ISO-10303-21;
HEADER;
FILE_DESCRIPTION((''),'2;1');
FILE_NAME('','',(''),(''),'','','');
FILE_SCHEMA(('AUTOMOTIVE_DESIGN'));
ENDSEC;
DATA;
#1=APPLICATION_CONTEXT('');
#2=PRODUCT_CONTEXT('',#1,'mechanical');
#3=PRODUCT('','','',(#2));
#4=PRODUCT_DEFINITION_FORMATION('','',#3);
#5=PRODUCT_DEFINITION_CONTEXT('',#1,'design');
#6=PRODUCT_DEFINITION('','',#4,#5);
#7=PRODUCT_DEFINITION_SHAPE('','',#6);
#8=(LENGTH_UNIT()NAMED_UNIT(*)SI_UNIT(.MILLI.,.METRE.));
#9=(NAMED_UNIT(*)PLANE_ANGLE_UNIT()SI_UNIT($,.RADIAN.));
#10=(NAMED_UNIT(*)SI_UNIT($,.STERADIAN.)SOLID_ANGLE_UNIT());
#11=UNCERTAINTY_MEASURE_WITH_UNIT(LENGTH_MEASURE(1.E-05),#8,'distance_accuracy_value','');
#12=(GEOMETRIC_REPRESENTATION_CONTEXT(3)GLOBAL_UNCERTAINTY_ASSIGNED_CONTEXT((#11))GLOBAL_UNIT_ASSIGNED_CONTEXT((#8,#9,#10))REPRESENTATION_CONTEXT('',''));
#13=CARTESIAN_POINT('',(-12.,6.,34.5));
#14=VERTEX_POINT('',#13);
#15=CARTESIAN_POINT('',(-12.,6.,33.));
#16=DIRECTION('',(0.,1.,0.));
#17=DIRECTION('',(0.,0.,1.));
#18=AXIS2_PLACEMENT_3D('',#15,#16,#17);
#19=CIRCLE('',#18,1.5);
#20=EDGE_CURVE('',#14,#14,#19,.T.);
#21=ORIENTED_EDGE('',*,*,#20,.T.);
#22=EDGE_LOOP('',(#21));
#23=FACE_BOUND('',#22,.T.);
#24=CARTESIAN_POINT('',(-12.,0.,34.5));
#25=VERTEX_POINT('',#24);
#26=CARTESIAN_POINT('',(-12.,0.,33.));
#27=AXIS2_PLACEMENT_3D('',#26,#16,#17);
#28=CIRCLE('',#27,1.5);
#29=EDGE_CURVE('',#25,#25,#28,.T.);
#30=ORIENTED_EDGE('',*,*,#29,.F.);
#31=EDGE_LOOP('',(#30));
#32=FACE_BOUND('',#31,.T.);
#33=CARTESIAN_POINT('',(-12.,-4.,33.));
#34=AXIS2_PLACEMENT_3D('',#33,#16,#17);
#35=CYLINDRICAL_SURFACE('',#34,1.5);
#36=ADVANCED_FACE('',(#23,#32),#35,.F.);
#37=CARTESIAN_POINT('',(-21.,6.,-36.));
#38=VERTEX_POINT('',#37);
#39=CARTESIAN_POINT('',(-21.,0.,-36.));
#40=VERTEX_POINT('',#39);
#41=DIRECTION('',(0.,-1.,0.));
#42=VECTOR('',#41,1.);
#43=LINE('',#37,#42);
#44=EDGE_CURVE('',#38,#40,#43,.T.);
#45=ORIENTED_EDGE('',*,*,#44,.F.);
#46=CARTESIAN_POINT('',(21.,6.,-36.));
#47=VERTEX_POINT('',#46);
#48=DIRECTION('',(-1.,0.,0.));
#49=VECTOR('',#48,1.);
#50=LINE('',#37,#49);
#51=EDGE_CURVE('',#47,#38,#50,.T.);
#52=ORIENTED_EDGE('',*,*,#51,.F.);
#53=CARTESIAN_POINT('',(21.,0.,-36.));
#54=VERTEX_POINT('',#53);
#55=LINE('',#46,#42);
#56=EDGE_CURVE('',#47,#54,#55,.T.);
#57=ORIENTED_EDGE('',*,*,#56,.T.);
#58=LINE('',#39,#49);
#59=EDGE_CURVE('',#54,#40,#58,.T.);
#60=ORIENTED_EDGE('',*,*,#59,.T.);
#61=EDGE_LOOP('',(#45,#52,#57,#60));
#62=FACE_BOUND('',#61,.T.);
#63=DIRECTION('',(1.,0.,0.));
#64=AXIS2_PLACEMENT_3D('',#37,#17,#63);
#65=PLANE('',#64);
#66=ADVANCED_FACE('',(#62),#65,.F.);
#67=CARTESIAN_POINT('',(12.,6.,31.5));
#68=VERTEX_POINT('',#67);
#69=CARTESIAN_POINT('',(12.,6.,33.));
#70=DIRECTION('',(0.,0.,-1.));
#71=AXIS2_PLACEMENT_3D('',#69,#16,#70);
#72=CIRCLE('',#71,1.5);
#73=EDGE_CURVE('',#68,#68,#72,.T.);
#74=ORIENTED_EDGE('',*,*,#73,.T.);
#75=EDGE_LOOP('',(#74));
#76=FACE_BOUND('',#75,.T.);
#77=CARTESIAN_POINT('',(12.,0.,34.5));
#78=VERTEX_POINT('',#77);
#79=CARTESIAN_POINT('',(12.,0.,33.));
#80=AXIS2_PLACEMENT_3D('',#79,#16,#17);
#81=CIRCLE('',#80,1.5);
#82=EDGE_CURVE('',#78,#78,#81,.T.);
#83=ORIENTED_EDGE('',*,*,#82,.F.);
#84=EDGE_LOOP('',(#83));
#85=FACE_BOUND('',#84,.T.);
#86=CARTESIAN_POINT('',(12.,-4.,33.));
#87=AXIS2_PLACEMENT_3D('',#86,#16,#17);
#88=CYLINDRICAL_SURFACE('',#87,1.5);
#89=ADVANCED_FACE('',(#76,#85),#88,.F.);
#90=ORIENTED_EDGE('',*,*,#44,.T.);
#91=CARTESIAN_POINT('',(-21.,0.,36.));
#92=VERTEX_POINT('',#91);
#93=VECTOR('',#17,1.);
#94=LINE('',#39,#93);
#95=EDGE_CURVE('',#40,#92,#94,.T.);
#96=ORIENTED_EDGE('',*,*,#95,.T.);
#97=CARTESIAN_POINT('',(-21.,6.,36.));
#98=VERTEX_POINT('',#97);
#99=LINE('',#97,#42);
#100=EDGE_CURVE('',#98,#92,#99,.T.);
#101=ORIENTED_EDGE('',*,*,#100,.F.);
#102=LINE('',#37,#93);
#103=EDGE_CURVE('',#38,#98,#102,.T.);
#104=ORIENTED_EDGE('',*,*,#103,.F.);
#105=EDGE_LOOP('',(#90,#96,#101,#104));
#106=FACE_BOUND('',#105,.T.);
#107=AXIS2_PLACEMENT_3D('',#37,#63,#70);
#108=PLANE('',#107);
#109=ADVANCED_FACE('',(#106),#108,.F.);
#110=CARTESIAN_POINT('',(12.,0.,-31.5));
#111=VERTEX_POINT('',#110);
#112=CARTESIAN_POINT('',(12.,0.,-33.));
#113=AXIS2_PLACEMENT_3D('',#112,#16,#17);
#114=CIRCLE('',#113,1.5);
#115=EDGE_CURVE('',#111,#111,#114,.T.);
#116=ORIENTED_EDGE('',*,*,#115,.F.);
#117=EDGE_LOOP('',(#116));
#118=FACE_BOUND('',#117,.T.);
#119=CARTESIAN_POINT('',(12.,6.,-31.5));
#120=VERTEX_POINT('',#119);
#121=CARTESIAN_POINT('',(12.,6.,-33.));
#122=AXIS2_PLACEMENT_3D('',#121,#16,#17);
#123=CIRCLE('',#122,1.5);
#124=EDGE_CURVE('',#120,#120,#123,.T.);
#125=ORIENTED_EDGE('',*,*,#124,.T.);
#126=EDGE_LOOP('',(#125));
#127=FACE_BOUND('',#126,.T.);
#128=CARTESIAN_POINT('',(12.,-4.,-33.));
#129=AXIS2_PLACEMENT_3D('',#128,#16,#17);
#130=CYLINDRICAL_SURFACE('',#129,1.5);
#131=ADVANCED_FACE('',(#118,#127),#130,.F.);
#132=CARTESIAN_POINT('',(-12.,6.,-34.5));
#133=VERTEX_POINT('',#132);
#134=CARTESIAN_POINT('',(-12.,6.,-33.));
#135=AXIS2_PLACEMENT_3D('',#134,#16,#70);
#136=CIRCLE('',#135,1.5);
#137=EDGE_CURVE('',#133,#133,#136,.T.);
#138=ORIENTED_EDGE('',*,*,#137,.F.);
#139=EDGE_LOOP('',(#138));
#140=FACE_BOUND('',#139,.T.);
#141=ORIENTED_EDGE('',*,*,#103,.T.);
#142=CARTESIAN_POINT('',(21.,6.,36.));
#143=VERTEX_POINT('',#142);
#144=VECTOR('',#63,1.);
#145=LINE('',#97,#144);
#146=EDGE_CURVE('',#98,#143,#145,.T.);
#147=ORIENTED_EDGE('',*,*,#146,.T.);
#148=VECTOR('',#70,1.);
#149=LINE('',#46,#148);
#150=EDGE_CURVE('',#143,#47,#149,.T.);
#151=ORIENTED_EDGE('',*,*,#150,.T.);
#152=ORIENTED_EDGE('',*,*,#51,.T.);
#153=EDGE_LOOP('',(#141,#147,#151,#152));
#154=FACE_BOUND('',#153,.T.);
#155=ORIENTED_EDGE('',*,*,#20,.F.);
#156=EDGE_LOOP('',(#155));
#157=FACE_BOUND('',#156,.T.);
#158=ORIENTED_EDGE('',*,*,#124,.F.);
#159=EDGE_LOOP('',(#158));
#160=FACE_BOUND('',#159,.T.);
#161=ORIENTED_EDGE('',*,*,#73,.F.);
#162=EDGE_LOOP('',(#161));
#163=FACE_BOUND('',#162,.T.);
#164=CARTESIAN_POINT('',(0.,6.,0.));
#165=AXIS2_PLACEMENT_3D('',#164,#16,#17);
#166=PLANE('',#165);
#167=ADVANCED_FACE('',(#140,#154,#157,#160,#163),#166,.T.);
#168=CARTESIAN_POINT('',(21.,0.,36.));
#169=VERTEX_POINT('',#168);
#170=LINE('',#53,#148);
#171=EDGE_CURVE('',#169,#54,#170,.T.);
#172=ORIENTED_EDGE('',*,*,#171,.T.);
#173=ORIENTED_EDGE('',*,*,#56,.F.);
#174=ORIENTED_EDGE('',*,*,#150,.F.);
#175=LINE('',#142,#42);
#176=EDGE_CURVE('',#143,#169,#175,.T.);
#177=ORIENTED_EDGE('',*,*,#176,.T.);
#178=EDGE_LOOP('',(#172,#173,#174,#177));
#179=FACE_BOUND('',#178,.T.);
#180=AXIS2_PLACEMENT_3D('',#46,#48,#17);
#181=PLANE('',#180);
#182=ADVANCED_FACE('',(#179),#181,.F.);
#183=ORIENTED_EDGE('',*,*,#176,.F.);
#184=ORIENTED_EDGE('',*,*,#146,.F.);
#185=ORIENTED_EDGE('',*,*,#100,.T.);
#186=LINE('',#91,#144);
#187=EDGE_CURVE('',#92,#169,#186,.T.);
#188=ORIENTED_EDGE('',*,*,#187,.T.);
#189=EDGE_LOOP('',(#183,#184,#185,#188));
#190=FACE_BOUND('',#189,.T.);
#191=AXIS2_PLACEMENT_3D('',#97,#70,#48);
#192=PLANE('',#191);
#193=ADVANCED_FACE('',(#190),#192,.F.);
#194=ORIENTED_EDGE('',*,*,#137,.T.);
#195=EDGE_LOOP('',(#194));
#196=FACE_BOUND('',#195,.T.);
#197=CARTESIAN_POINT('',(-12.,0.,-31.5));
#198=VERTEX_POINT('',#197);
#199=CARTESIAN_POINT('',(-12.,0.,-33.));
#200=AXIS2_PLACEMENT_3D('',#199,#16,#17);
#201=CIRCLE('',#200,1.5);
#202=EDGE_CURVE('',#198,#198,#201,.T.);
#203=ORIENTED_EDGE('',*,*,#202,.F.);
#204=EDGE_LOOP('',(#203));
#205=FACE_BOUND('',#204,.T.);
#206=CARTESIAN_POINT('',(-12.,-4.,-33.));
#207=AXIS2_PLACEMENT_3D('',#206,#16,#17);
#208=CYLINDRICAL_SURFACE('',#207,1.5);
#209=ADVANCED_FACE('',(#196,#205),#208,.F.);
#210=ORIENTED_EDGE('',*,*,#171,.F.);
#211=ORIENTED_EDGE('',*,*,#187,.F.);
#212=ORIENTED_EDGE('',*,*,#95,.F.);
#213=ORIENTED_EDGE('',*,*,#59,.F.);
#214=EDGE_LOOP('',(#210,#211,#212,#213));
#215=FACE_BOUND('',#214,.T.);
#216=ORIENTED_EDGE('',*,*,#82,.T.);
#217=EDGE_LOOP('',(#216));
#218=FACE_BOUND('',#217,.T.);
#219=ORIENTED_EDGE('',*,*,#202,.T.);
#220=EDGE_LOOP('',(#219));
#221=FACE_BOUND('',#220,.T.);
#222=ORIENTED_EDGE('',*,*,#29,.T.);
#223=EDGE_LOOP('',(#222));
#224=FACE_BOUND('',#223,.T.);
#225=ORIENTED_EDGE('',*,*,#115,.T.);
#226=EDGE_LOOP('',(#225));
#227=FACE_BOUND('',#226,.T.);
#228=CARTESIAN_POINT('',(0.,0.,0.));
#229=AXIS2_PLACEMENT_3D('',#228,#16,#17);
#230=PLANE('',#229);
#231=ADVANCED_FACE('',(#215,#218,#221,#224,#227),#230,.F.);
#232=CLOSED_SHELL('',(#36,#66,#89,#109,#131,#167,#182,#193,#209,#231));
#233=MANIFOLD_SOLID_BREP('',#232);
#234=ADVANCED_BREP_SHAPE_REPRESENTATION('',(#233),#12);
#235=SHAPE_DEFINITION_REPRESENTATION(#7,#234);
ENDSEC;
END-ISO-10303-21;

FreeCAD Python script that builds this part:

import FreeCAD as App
import Part
import Sketcher
from FreeCAD import Vector

doc = App.newDocument("Part")
params = doc.addObject("Spreadsheet::Sheet", "Params")
for row, (alias, value) in enumerate([
    ("sketch1_width", "42 mm"),
    ("sketch1_height", "72 mm"),
    ("pad1_length", "6 mm"),
    ("sketch2_diameter", "3 mm"),
    ("pocket1_length", "10 mm"),
], start=1):
    params.set(f"A{row}", alias)
    params.set(f"B{row}", "=" + value)
    params.setAlias(f"B{row}", alias)

body = doc.addObject("PartDesign::Body", "Body")

sketch1 = doc.addObject("Sketcher::SketchObject", "Sketch")
body.addObject(sketch1)
sketch1.AttachmentSupport = (doc.XZ_Plane, [""])
sketch1.MapMode = "FlatFace"
sketch1.addGeometry([
    Part.LineSegment(Vector(-21, -36, 0), Vector(-21, 36, 0)),
    Part.LineSegment(Vector(-21, 36, 0), Vector(21, 36, 0)),
    Part.LineSegment(Vector(21, 36, 0), Vector(21, -36, 0)),
    Part.LineSegment(Vector(21, -36, 0), Vector(-21, -36, 0)),
], False)
sketch1.addConstraint([
    Sketcher.Constraint("Coincident", 0, 2, 1, 1),
    Sketcher.Constraint("Coincident", 1, 2, 2, 1),
    Sketcher.Constraint("Coincident", 2, 2, 3, 1),
    Sketcher.Constraint("Coincident", 3, 2, 0, 1),
    Sketcher.Constraint("Vertical", 0),
    Sketcher.Constraint("Horizontal", 1),
    Sketcher.Constraint("Vertical", 2),
    Sketcher.Constraint("Horizontal", 3),
    Sketcher.Constraint("Symmetric", 0, 2, 2, 2, -1, 1),
    Sketcher.Constraint("DistanceX", 1, 1, 1, 2, 42.0),
    Sketcher.Constraint("DistanceY", 0, 1, 0, 2, 72.0),
])
sketch1.setExpression("Constraints[9]", "Params.sketch1_width")
sketch1.setExpression("Constraints[10]", "Params.sketch1_height")
pad1 = doc.addObject("PartDesign::Pad", "Pad")
body.addObject(pad1)
pad1.Profile = sketch1
pad1.setExpression("Length", "Params.pad1_length")
pad1.Reversed = True

sketch2 = doc.addObject("Sketcher::SketchObject", "Sketch001")
body.addObject(sketch2)
sketch2.AttachmentSupport = (doc.XZ_Plane, [""])
sketch2.MapMode = "FlatFace"
sketch2.AttachmentOffset = App.Placement(Vector(0, 0, -6), App.Rotation())
sketch2.addGeometry([
    Part.Circle(Vector(-12, 33, 0), Vector(0, 0, 1), 1.5),
    Part.Circle(Vector(12, 33, 0), Vector(0, 0, 1), 1.5),
    Part.Circle(Vector(12, -33, 0), Vector(0, 0, 1), 1.5),
    Part.Circle(Vector(-12, -33, 0), Vector(0, 0, 1), 1.5),
], False)
sketch2.addConstraint([
    Sketcher.Constraint("Equal", 0, 1),
    Sketcher.Constraint("Equal", 1, 2),
    Sketcher.Constraint("Equal", 2, 3),
    Sketcher.Constraint("Symmetric", 0, 3, 2, 3, -1, 1),
    Sketcher.Constraint("Symmetric", 1, 3, 3, 3, -1, 1),
    Sketcher.Constraint("Symmetric", 0, 3, 1, 3, -2),
    Sketcher.Constraint("Diameter", 0, 3.0),
    Sketcher.Constraint("DistanceX", 0, 3, -1, 1, 12.0),
    Sketcher.Constraint("DistanceY", -1, 1, 0, 3, 33.0),
])
sketch2.setExpression("Constraints[6]", "Params.sketch2_diameter")
pocket1 = doc.addObject("PartDesign::Pocket", "Pocket")
body.addObject(pocket1)
pocket1.Profile = sketch2
pocket1.setExpression("Length", "Params.pocket1_length")
pocket1.Reversed = True

doc.recompute()
